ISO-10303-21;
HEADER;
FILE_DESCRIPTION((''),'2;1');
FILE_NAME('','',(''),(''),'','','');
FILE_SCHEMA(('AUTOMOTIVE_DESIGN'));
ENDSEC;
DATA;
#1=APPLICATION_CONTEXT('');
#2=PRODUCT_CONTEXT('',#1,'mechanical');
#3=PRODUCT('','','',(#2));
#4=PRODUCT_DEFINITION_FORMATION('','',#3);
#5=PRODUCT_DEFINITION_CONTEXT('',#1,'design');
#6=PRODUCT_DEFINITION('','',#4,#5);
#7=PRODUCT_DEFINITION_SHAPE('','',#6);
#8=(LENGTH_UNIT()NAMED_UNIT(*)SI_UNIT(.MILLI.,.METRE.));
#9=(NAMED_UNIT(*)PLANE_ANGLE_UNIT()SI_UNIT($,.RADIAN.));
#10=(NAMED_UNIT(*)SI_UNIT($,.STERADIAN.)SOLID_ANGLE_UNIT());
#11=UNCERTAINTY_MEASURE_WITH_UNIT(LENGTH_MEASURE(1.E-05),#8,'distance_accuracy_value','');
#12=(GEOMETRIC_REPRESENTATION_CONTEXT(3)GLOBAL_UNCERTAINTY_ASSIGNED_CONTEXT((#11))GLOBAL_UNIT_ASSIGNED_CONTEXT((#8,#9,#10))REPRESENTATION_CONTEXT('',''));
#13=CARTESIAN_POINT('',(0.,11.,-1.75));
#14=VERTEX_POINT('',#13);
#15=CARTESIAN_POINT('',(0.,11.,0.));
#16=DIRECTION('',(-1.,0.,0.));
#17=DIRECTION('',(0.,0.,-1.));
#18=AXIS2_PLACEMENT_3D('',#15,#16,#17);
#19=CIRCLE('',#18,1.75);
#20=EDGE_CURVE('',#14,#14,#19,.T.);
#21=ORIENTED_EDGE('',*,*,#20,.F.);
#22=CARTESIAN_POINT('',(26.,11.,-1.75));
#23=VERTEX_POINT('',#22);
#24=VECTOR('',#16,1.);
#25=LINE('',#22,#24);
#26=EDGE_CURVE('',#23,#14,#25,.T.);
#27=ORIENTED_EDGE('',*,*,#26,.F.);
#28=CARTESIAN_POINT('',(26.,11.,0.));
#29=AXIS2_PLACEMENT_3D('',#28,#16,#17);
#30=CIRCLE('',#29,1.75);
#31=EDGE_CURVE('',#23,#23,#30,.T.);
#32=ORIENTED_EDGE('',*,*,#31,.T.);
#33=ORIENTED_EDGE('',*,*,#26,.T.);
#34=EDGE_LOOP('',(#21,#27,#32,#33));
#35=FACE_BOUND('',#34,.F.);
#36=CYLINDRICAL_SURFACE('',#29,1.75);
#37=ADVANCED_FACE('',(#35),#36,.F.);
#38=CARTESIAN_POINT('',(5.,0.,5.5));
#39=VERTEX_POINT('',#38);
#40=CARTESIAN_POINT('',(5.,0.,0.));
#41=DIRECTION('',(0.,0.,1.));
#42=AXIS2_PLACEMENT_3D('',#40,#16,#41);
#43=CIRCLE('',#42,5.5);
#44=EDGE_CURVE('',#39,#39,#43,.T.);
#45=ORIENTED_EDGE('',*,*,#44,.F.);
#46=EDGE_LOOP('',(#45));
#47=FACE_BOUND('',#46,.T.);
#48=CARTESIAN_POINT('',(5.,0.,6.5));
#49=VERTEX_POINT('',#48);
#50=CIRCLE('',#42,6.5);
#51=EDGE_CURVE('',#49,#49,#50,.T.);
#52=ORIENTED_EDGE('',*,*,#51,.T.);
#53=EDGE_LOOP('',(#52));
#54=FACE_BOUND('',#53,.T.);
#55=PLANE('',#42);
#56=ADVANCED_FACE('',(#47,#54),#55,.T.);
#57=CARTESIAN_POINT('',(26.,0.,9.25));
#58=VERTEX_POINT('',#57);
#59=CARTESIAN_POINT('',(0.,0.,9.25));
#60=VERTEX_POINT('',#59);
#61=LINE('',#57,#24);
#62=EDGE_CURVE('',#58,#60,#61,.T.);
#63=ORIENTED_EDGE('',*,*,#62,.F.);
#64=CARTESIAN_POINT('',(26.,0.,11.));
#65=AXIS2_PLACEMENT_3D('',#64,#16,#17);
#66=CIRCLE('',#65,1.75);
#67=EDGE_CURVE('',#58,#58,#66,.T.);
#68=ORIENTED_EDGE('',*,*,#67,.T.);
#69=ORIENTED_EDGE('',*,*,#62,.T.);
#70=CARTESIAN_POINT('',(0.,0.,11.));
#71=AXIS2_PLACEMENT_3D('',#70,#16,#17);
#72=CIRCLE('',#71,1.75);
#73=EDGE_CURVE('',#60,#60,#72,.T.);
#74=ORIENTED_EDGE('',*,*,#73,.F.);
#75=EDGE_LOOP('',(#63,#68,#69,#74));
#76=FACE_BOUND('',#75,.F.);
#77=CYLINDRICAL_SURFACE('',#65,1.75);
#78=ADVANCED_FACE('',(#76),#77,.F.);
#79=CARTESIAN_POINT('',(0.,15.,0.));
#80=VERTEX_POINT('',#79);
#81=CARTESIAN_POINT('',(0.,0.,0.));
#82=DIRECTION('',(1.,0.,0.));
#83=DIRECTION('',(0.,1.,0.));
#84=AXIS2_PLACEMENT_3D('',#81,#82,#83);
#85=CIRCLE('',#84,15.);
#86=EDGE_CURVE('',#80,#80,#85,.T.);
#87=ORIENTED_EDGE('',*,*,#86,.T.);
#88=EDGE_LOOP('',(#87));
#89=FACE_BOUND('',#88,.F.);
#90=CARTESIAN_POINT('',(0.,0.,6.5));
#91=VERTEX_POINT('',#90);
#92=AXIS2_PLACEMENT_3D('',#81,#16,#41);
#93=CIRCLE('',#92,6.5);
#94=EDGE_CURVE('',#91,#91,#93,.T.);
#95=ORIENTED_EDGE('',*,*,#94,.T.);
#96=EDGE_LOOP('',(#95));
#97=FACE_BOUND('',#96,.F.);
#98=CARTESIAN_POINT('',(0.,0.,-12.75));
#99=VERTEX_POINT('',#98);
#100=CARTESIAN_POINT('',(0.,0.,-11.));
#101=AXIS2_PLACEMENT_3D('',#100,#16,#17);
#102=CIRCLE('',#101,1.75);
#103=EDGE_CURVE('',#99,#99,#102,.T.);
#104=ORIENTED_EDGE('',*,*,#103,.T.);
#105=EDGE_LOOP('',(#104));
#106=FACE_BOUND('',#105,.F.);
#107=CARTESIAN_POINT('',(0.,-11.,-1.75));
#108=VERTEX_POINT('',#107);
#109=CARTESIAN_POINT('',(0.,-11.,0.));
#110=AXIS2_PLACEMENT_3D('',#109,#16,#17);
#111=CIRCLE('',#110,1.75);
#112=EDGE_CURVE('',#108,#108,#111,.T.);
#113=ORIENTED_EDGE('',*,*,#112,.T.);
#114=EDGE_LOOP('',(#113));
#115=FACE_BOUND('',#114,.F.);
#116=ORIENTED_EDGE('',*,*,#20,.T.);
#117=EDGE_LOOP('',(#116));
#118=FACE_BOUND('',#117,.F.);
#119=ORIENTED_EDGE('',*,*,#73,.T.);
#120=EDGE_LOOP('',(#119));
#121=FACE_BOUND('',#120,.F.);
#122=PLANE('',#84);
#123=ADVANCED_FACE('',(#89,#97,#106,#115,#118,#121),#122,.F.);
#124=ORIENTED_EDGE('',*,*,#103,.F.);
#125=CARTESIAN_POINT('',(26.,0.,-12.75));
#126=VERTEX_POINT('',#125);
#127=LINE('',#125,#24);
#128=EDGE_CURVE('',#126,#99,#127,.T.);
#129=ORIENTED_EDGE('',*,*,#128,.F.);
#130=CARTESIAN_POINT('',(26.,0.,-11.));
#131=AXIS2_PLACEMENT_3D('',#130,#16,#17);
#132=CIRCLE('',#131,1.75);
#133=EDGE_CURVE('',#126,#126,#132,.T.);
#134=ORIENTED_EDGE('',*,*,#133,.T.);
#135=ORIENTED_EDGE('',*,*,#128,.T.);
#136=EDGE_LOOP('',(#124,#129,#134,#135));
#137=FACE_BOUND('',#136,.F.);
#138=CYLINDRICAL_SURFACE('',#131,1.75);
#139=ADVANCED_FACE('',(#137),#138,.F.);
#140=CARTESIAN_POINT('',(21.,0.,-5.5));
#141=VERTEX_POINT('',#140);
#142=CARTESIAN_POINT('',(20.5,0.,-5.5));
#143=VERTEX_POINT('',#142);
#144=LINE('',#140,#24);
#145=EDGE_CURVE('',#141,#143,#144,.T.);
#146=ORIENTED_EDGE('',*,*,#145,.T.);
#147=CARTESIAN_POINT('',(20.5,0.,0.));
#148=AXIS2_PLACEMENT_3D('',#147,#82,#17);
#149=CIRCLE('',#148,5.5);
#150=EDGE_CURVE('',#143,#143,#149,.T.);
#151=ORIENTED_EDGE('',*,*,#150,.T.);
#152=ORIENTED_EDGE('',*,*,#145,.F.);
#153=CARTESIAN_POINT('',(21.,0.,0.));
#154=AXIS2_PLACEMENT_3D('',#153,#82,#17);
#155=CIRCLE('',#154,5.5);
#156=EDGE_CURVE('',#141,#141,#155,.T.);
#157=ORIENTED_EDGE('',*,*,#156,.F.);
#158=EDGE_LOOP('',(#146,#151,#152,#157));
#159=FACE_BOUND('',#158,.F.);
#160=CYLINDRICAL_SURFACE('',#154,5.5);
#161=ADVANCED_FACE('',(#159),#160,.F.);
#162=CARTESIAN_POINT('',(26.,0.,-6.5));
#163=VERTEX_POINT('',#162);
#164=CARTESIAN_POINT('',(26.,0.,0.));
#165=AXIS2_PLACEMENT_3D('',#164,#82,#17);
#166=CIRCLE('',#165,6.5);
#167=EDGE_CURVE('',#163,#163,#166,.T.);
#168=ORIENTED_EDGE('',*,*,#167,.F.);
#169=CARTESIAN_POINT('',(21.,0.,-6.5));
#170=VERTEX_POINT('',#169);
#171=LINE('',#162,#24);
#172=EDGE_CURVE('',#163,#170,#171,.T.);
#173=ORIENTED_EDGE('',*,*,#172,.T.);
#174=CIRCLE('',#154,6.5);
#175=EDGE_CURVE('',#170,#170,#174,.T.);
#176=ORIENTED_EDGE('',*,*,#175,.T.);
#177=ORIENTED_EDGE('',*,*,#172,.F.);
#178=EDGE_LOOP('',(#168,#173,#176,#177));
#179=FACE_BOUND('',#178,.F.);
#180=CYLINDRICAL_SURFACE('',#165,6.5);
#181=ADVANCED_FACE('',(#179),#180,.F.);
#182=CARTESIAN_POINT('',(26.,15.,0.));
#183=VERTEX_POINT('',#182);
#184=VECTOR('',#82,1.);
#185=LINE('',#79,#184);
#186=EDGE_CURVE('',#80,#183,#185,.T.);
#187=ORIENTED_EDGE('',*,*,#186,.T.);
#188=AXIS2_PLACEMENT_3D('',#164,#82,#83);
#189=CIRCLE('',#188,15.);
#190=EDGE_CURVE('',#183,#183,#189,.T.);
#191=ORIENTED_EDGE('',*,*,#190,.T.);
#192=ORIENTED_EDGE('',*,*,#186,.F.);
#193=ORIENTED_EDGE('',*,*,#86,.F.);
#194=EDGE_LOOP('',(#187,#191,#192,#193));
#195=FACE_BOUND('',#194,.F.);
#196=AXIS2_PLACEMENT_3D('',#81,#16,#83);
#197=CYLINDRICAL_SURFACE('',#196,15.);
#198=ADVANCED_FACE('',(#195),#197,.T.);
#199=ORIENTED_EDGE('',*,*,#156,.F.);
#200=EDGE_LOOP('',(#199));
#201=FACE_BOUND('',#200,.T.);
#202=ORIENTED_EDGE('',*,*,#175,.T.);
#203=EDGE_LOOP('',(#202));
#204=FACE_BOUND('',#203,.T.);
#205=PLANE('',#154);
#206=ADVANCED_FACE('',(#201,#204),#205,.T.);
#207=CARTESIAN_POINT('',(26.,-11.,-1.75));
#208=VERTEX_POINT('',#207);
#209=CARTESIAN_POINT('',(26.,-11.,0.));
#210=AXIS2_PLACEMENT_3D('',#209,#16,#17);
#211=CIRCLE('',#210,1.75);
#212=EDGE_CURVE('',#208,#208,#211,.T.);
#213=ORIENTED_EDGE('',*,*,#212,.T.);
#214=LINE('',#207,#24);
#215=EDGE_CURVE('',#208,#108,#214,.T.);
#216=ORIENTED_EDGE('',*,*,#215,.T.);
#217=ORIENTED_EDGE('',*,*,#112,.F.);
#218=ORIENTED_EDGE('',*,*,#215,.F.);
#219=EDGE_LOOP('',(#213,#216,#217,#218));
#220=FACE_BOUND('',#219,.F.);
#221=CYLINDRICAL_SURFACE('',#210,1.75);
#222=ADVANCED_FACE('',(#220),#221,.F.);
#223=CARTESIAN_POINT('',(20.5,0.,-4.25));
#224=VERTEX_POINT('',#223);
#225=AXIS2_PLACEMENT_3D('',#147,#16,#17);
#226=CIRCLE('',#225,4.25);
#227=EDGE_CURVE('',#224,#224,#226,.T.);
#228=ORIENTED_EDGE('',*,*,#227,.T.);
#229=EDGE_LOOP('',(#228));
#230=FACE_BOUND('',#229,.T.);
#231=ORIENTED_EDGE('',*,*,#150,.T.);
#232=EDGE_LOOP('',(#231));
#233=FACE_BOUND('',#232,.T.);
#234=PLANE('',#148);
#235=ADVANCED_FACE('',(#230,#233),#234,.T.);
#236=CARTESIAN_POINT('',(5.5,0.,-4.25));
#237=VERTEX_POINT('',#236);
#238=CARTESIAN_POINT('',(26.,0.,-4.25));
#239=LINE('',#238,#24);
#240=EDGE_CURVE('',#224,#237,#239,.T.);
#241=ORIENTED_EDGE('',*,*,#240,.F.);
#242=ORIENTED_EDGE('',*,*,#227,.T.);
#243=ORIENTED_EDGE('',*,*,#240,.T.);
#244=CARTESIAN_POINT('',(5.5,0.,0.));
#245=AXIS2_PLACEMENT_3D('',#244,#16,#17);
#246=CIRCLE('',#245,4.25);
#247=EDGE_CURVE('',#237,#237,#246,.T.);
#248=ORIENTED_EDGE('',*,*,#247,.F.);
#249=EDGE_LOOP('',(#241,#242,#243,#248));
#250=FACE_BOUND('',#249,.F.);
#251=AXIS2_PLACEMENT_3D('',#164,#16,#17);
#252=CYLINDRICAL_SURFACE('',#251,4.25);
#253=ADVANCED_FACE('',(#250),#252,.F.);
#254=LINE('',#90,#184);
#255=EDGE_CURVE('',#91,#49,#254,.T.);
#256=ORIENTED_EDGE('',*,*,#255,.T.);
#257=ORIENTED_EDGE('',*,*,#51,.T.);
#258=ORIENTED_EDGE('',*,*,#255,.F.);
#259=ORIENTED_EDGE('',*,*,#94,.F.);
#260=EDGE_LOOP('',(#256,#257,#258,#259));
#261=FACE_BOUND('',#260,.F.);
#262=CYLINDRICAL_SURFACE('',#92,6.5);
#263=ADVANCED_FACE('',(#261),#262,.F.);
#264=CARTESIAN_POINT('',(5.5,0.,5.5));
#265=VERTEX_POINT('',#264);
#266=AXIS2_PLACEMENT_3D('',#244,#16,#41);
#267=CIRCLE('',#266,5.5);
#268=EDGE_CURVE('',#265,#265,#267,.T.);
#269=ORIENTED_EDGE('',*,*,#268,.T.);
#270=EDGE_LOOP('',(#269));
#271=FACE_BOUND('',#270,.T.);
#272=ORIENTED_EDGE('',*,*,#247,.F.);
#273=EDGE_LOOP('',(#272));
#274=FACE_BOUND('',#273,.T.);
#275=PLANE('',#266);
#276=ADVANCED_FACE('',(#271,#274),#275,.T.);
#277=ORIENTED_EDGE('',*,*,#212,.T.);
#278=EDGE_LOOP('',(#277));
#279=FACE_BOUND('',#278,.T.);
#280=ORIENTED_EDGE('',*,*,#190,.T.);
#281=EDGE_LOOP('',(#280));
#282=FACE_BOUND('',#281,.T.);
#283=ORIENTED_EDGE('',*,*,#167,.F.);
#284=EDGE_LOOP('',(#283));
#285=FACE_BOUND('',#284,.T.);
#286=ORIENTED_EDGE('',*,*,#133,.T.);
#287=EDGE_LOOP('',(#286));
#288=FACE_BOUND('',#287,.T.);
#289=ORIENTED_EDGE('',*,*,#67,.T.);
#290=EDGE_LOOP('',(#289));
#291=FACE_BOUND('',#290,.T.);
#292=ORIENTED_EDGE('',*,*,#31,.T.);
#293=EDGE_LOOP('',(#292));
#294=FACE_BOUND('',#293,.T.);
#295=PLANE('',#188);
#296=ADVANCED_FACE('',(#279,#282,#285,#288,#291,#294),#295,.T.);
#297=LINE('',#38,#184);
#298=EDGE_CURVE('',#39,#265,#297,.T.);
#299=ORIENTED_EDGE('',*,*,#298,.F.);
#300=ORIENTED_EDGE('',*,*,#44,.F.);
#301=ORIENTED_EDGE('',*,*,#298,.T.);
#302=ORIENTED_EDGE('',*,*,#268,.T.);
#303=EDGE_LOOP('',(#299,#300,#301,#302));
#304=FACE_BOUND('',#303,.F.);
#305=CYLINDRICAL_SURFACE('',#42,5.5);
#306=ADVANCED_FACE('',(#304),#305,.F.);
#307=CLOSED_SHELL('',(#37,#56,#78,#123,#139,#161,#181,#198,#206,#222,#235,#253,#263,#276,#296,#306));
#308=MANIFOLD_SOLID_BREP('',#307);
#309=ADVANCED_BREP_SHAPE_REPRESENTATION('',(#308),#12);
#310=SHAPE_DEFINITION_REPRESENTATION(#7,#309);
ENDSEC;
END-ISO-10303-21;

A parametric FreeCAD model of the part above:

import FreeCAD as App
import Part
import Sketcher

doc = App.newDocument("Part")
params = doc.addObject("Spreadsheet::Sheet", "Params")
for row, (alias, value) in enumerate([
    ("sketch1_diameter", "30 mm"),
    ("pad1_length", "26 mm"),
    ("sketch2_diameter", "8.5 mm"),
    ("hole_diameter", "8.5 mm"),
    ("sketch3_diameter", "3.5 mm"),
    ("hole2_diameter", "3.5 mm"),
    ("hole2_depth", "26 mm"),
    ("sketch4_diameter", "13 mm"),
    ("pocket1_length", "5 mm"),
    ("sketch5_diameter", "11 mm"),
    ("pocket2_length", "0.5 mm"),
    ("sketch6_diameter", "13 mm"),
    ("pocket3_length", "5 mm"),
    ("sketch7_diameter", "11 mm"),
    ("pocket4_length", "0.5 mm"),
], start=1):
    params.set(f"A{row}", alias)
    params.set(f"B{row}", "=" + value)
    params.setAlias(f"B{row}", alias)

body = doc.addObject("PartDesign::Body", "Body")

sketch1 = body.newObject("Sketcher::SketchObject", "Sketch")
sketch1.AttachmentSupport = (doc.getObject("YZ_Plane"), [""])
sketch1.MapMode = "FlatFace"
sketch1.addGeometry(Part.Circle(App.Vector(0, 0, 0), App.Vector(0, 0, 1), 15), False)
sketch1.addConstraint(Sketcher.Constraint("Coincident", 0, 3, -1, 1))
sketch1.addConstraint(Sketcher.Constraint("Diameter", 0, 30.0))
sketch1.setExpression("Constraints[1]", "Params.sketch1_diameter")
pad1 = body.newObject("PartDesign::Pad", "Pad")
pad1.Profile = sketch1
pad1.setExpression("Length", "Params.pad1_length")

sketch2 = body.newObject("Sketcher::SketchObject", "Sketch001")
sketch2.AttachmentSupport = (doc.getObject("YZ_Plane"), [""])
sketch2.MapMode = "FlatFace"
sketch2.AttachmentOffset = App.Placement(App.Vector(0, 0, 26), App.Rotation())
sketch2.addGeometry(Part.Circle(App.Vector(0, 0, 0), App.Vector(0, 0, 1), 4.2), False)
sketch2.addConstraint(Sketcher.Constraint("Coincident", 0, 3, -1, 1))
sketch2.addConstraint(Sketcher.Constraint("Diameter", 0, 8.5))
sketch2.setExpression("Constraints[1]", "Params.sketch2_diameter")
doc.recompute()
hole = body.newObject("PartDesign::Hole", "Hole")
hole.Profile = sketch2
hole.ThreadType = "None"
hole.setExpression("Diameter", "Params.hole_diameter")
hole.DepthType = "ThroughAll"

sketch3 = body.newObject("Sketcher::SketchObject", "Sketch002")
sketch3.AttachmentSupport = (doc.getObject("YZ_Plane"), [""])
sketch3.MapMode = "FlatFace"
sketch3.AttachmentOffset = App.Placement(App.Vector(0, 0, 26), App.Rotation())
sketch3.addGeometry(Part.Circle(App.Vector(0, -11, 0), App.Vector(0, 0, 1), 1.8), False)
sketch3.addGeometry(Part.Circle(App.Vector(11, 0, 0), App.Vector(0, 0, 1), 1.8), False)
sketch3.addGeometry(Part.Circle(App.Vector(0, 11, 0), App.Vector(0, 0, 1), 1.8), False)
sketch3.addGeometry(Part.Circle(App.Vector(-11, 0, 0), App.Vector(0, 0, 1), 1.8), False)
sketch3.addConstraint(Sketcher.Constraint("Equal", 0, 1))
sketch3.addConstraint(Sketcher.Constraint("Equal", 1, 2))
sketch3.addConstraint(Sketcher.Constraint("Equal", 2, 3))
sketch3.addConstraint(Sketcher.Constraint("Symmetric", 0, 3, 2, 3, -1, 1))
sketch3.addConstraint(Sketcher.Constraint("Symmetric", 1, 3, 3, 3, -1, 1))
sketch3.addConstraint(Sketcher.Constraint("PointOnObject", 0, 3, -2))
sketch3.addConstraint(Sketcher.Constraint("PointOnObject", 1, 3, -1))
sketch3.addConstraint(Sketcher.Constraint("Diameter", 0, 3.5))
sketch3.addConstraint(Sketcher.Constraint("DistanceY", 0, 3, -1, 1, 11.0))
sketch3.addConstraint(Sketcher.Constraint("DistanceX", -1, 1, 1, 3, 11.0))
sketch3.setExpression("Constraints[7]", "Params.sketch3_diameter")
doc.recompute()
hole2 = body.newObject("PartDesign::Hole", "Hole001")
hole2.Profile = sketch3
hole2.ThreadType = "None"
hole2.setExpression("Diameter", "Params.hole2_diameter")
hole2.DepthType = "Dimension"
hole2.setExpression("Depth", "Params.hole2_depth")
hole2.DrillPoint = "Angled"
hole2.DrillPointAngle = 118

sketch4 = body.newObject("Sketcher::SketchObject", "Sketch003")
sketch4.AttachmentSupport = (doc.getObject("YZ_Plane"), [""])
sketch4.MapMode = "FlatFace"
sketch4.addGeometry(Part.Circle(App.Vector(0, 0, 0), App.Vector(0, 0, 1), 6), False)
sketch4.addConstraint(Sketcher.Constraint("Coincident", 0, 3, -1, 1))
sketch4.addConstraint(Sketcher.Constraint("Diameter", 0, 13.0))
sketch4.setExpression("Constraints[1]", "Params.sketch4_diameter")
pocket1 = body.newObject("PartDesign::Pocket", "Pocket")
pocket1.Profile = sketch4
pocket1.setExpression("Length", "Params.pocket1_length")
pocket1.Reversed = True

sketch5 = body.newObject("Sketcher::SketchObject", "Sketch004")
sketch5.AttachmentSupport = (doc.getObject("YZ_Plane"), [""])
sketch5.MapMode = "FlatFace"
sketch5.AttachmentOffset = App.Placement(App.Vector(0, 0, 5), App.Rotation())
sketch5.addGeometry(Part.Circle(App.Vector(0, 0, 0), App.Vector(0, 0, 1), 6), False)
sketch5.addConstraint(Sketcher.Constraint("Coincident", 0, 3, -1, 1))
sketch5.addConstraint(Sketcher.Constraint("Diameter", 0, 11.0))
sketch5.setExpression("Constraints[1]", "Params.sketch5_diameter")
pocket2 = body.newObject("PartDesign::Pocket", "Pocket001")
pocket2.Profile = sketch5
pocket2.setExpression("Length", "Params.pocket2_length")
pocket2.Reversed = True

sketch6 = body.newObject("Sketcher::SketchObject", "Sketch005")
sketch6.AttachmentSupport = (doc.getObject("YZ_Plane"), [""])
sketch6.MapMode = "FlatFace"
sketch6.AttachmentOffset = App.Placement(App.Vector(0, 0, 26), App.Rotation())
sketch6.addGeometry(Part.Circle(App.Vector(0, 0, 0), App.Vector(0, 0, 1), 6), False)
sketch6.addConstraint(Sketcher.Constraint("Coincident", 0, 3, -1, 1))
sketch6.addConstraint(Sketcher.Constraint("Diameter", 0, 13.0))
sketch6.setExpression("Constraints[1]", "Params.sketch6_diameter")
pocket3 = body.newObject("PartDesign::Pocket", "Pocket002")
pocket3.Profile = sketch6
pocket3.setExpression("Length", "Params.pocket3_length")

sketch7 = body.newObject("Sketcher::SketchObject", "Sketch006")
sketch7.AttachmentSupport = (doc.getObject("YZ_Plane"), [""])
sketch7.MapMode = "FlatFace"
sketch7.AttachmentOffset = App.Placement(App.Vector(0, 0, 21), App.Rotation())
sketch7.addGeometry(Part.Circle(App.Vector(0, 0, 0), App.Vector(0, 0, 1), 6), False)
sketch7.addConstraint(Sketcher.Constraint("Coincident", 0, 3, -1, 1))
sketch7.addConstraint(Sketcher.Constraint("Diameter", 0, 11.0))
sketch7.setExpression("Constraints[1]", "Params.sketch7_diameter")
pocket4 = body.newObject("PartDesign::Pocket", "Pocket003")
pocket4.Profile = sketch7
pocket4.setExpression("Length", "Params.pocket4_length")

doc.recompute()
